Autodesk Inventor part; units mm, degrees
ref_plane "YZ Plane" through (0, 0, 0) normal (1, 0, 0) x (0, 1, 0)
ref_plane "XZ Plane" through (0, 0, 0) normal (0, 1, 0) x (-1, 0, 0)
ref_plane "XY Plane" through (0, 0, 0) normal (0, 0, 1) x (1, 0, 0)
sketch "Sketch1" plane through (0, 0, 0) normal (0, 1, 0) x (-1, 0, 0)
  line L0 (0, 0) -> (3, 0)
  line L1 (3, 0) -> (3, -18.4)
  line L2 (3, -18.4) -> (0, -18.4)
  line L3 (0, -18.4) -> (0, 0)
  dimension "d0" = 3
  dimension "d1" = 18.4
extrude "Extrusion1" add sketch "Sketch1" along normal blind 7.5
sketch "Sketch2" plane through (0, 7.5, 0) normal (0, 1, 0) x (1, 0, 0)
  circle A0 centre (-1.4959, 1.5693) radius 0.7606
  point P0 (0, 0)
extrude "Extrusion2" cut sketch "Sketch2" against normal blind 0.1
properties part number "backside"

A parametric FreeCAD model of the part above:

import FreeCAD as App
import Part
import Sketcher

V = App.Vector

doc = App.newDocument("Part")
body = doc.addObject("PartDesign::Body", "Body")

sketch1 = doc.addObject("Sketcher::SketchObject", "Sketch")
body.addObject(sketch1)
sketch1.AttachmentSupport = (doc.XZ_Plane, [""])
sketch1.MapMode = "FlatFace"
sketch1.addGeometry([
    Part.LineSegment(V(-3, 0, 0), V(0, 0, 0)),
    Part.LineSegment(V(0, 0, 0), V(0, -18.4, 0)),
    Part.LineSegment(V(0, -18.4, 0), V(-3, -18.4, 0)),
    Part.LineSegment(V(-3, -18.4, 0), V(-3, 0, 0)),
], False)
sketch1.addConstraint([
    Sketcher.Constraint("Coincident", 0, 2, 1, 1),
    Sketcher.Constraint("Coincident", 1, 2, 2, 1),
    Sketcher.Constraint("Coincident", 2, 2, 3, 1),
    Sketcher.Constraint("Coincident", 3, 2, 0, 1),
    Sketcher.Constraint("Horizontal", 0),
    Sketcher.Constraint("Vertical", 1),
    Sketcher.Constraint("Horizontal", 2),
    Sketcher.Constraint("Vertical", 3),
    Sketcher.Constraint("Coincident", 0, 2, -1, 1),
    Sketcher.Constraint("DistanceX", 0, 1, 0, 2, 3.0),
    Sketcher.Constraint("DistanceY", 1, 2, 1, 1, 18.4),
])
pad1 = doc.addObject("PartDesign::Pad", "Pad")
body.addObject(pad1)
pad1.Profile = sketch1
pad1.Length = 7.5
pad1.Reversed = True

sketch2 = doc.addObject("Sketcher::SketchObject", "Sketch001")
body.addObject(sketch2)
sketch2.AttachmentSupport = (doc.XZ_Plane, [""])
sketch2.MapMode = "FlatFace"
sketch2.AttachmentOffset = App.Placement(V(0, 0, -7.5), App.Rotation())
sketch2.addGeometry(Part.Circle(V(-1.5, -1.6, 0), V(0, 0, 1), 0.8), False)
sketch2.addConstraint([
    Sketcher.Constraint("Diameter", 0, 1.5212),
    Sketcher.Constraint("DistanceX", 0, 3, -1, 1, 1.496),
    Sketcher.Constraint("DistanceY", 0, 3, -1, 1, 1.5693),
])
pocket1 = doc.addObject("PartDesign::Pocket", "Pocket")
body.addObject(pocket1)
pocket1.Profile = sketch2
pocket1.Length = 0.1
pocket1.Reversed = True

doc.recompute()
